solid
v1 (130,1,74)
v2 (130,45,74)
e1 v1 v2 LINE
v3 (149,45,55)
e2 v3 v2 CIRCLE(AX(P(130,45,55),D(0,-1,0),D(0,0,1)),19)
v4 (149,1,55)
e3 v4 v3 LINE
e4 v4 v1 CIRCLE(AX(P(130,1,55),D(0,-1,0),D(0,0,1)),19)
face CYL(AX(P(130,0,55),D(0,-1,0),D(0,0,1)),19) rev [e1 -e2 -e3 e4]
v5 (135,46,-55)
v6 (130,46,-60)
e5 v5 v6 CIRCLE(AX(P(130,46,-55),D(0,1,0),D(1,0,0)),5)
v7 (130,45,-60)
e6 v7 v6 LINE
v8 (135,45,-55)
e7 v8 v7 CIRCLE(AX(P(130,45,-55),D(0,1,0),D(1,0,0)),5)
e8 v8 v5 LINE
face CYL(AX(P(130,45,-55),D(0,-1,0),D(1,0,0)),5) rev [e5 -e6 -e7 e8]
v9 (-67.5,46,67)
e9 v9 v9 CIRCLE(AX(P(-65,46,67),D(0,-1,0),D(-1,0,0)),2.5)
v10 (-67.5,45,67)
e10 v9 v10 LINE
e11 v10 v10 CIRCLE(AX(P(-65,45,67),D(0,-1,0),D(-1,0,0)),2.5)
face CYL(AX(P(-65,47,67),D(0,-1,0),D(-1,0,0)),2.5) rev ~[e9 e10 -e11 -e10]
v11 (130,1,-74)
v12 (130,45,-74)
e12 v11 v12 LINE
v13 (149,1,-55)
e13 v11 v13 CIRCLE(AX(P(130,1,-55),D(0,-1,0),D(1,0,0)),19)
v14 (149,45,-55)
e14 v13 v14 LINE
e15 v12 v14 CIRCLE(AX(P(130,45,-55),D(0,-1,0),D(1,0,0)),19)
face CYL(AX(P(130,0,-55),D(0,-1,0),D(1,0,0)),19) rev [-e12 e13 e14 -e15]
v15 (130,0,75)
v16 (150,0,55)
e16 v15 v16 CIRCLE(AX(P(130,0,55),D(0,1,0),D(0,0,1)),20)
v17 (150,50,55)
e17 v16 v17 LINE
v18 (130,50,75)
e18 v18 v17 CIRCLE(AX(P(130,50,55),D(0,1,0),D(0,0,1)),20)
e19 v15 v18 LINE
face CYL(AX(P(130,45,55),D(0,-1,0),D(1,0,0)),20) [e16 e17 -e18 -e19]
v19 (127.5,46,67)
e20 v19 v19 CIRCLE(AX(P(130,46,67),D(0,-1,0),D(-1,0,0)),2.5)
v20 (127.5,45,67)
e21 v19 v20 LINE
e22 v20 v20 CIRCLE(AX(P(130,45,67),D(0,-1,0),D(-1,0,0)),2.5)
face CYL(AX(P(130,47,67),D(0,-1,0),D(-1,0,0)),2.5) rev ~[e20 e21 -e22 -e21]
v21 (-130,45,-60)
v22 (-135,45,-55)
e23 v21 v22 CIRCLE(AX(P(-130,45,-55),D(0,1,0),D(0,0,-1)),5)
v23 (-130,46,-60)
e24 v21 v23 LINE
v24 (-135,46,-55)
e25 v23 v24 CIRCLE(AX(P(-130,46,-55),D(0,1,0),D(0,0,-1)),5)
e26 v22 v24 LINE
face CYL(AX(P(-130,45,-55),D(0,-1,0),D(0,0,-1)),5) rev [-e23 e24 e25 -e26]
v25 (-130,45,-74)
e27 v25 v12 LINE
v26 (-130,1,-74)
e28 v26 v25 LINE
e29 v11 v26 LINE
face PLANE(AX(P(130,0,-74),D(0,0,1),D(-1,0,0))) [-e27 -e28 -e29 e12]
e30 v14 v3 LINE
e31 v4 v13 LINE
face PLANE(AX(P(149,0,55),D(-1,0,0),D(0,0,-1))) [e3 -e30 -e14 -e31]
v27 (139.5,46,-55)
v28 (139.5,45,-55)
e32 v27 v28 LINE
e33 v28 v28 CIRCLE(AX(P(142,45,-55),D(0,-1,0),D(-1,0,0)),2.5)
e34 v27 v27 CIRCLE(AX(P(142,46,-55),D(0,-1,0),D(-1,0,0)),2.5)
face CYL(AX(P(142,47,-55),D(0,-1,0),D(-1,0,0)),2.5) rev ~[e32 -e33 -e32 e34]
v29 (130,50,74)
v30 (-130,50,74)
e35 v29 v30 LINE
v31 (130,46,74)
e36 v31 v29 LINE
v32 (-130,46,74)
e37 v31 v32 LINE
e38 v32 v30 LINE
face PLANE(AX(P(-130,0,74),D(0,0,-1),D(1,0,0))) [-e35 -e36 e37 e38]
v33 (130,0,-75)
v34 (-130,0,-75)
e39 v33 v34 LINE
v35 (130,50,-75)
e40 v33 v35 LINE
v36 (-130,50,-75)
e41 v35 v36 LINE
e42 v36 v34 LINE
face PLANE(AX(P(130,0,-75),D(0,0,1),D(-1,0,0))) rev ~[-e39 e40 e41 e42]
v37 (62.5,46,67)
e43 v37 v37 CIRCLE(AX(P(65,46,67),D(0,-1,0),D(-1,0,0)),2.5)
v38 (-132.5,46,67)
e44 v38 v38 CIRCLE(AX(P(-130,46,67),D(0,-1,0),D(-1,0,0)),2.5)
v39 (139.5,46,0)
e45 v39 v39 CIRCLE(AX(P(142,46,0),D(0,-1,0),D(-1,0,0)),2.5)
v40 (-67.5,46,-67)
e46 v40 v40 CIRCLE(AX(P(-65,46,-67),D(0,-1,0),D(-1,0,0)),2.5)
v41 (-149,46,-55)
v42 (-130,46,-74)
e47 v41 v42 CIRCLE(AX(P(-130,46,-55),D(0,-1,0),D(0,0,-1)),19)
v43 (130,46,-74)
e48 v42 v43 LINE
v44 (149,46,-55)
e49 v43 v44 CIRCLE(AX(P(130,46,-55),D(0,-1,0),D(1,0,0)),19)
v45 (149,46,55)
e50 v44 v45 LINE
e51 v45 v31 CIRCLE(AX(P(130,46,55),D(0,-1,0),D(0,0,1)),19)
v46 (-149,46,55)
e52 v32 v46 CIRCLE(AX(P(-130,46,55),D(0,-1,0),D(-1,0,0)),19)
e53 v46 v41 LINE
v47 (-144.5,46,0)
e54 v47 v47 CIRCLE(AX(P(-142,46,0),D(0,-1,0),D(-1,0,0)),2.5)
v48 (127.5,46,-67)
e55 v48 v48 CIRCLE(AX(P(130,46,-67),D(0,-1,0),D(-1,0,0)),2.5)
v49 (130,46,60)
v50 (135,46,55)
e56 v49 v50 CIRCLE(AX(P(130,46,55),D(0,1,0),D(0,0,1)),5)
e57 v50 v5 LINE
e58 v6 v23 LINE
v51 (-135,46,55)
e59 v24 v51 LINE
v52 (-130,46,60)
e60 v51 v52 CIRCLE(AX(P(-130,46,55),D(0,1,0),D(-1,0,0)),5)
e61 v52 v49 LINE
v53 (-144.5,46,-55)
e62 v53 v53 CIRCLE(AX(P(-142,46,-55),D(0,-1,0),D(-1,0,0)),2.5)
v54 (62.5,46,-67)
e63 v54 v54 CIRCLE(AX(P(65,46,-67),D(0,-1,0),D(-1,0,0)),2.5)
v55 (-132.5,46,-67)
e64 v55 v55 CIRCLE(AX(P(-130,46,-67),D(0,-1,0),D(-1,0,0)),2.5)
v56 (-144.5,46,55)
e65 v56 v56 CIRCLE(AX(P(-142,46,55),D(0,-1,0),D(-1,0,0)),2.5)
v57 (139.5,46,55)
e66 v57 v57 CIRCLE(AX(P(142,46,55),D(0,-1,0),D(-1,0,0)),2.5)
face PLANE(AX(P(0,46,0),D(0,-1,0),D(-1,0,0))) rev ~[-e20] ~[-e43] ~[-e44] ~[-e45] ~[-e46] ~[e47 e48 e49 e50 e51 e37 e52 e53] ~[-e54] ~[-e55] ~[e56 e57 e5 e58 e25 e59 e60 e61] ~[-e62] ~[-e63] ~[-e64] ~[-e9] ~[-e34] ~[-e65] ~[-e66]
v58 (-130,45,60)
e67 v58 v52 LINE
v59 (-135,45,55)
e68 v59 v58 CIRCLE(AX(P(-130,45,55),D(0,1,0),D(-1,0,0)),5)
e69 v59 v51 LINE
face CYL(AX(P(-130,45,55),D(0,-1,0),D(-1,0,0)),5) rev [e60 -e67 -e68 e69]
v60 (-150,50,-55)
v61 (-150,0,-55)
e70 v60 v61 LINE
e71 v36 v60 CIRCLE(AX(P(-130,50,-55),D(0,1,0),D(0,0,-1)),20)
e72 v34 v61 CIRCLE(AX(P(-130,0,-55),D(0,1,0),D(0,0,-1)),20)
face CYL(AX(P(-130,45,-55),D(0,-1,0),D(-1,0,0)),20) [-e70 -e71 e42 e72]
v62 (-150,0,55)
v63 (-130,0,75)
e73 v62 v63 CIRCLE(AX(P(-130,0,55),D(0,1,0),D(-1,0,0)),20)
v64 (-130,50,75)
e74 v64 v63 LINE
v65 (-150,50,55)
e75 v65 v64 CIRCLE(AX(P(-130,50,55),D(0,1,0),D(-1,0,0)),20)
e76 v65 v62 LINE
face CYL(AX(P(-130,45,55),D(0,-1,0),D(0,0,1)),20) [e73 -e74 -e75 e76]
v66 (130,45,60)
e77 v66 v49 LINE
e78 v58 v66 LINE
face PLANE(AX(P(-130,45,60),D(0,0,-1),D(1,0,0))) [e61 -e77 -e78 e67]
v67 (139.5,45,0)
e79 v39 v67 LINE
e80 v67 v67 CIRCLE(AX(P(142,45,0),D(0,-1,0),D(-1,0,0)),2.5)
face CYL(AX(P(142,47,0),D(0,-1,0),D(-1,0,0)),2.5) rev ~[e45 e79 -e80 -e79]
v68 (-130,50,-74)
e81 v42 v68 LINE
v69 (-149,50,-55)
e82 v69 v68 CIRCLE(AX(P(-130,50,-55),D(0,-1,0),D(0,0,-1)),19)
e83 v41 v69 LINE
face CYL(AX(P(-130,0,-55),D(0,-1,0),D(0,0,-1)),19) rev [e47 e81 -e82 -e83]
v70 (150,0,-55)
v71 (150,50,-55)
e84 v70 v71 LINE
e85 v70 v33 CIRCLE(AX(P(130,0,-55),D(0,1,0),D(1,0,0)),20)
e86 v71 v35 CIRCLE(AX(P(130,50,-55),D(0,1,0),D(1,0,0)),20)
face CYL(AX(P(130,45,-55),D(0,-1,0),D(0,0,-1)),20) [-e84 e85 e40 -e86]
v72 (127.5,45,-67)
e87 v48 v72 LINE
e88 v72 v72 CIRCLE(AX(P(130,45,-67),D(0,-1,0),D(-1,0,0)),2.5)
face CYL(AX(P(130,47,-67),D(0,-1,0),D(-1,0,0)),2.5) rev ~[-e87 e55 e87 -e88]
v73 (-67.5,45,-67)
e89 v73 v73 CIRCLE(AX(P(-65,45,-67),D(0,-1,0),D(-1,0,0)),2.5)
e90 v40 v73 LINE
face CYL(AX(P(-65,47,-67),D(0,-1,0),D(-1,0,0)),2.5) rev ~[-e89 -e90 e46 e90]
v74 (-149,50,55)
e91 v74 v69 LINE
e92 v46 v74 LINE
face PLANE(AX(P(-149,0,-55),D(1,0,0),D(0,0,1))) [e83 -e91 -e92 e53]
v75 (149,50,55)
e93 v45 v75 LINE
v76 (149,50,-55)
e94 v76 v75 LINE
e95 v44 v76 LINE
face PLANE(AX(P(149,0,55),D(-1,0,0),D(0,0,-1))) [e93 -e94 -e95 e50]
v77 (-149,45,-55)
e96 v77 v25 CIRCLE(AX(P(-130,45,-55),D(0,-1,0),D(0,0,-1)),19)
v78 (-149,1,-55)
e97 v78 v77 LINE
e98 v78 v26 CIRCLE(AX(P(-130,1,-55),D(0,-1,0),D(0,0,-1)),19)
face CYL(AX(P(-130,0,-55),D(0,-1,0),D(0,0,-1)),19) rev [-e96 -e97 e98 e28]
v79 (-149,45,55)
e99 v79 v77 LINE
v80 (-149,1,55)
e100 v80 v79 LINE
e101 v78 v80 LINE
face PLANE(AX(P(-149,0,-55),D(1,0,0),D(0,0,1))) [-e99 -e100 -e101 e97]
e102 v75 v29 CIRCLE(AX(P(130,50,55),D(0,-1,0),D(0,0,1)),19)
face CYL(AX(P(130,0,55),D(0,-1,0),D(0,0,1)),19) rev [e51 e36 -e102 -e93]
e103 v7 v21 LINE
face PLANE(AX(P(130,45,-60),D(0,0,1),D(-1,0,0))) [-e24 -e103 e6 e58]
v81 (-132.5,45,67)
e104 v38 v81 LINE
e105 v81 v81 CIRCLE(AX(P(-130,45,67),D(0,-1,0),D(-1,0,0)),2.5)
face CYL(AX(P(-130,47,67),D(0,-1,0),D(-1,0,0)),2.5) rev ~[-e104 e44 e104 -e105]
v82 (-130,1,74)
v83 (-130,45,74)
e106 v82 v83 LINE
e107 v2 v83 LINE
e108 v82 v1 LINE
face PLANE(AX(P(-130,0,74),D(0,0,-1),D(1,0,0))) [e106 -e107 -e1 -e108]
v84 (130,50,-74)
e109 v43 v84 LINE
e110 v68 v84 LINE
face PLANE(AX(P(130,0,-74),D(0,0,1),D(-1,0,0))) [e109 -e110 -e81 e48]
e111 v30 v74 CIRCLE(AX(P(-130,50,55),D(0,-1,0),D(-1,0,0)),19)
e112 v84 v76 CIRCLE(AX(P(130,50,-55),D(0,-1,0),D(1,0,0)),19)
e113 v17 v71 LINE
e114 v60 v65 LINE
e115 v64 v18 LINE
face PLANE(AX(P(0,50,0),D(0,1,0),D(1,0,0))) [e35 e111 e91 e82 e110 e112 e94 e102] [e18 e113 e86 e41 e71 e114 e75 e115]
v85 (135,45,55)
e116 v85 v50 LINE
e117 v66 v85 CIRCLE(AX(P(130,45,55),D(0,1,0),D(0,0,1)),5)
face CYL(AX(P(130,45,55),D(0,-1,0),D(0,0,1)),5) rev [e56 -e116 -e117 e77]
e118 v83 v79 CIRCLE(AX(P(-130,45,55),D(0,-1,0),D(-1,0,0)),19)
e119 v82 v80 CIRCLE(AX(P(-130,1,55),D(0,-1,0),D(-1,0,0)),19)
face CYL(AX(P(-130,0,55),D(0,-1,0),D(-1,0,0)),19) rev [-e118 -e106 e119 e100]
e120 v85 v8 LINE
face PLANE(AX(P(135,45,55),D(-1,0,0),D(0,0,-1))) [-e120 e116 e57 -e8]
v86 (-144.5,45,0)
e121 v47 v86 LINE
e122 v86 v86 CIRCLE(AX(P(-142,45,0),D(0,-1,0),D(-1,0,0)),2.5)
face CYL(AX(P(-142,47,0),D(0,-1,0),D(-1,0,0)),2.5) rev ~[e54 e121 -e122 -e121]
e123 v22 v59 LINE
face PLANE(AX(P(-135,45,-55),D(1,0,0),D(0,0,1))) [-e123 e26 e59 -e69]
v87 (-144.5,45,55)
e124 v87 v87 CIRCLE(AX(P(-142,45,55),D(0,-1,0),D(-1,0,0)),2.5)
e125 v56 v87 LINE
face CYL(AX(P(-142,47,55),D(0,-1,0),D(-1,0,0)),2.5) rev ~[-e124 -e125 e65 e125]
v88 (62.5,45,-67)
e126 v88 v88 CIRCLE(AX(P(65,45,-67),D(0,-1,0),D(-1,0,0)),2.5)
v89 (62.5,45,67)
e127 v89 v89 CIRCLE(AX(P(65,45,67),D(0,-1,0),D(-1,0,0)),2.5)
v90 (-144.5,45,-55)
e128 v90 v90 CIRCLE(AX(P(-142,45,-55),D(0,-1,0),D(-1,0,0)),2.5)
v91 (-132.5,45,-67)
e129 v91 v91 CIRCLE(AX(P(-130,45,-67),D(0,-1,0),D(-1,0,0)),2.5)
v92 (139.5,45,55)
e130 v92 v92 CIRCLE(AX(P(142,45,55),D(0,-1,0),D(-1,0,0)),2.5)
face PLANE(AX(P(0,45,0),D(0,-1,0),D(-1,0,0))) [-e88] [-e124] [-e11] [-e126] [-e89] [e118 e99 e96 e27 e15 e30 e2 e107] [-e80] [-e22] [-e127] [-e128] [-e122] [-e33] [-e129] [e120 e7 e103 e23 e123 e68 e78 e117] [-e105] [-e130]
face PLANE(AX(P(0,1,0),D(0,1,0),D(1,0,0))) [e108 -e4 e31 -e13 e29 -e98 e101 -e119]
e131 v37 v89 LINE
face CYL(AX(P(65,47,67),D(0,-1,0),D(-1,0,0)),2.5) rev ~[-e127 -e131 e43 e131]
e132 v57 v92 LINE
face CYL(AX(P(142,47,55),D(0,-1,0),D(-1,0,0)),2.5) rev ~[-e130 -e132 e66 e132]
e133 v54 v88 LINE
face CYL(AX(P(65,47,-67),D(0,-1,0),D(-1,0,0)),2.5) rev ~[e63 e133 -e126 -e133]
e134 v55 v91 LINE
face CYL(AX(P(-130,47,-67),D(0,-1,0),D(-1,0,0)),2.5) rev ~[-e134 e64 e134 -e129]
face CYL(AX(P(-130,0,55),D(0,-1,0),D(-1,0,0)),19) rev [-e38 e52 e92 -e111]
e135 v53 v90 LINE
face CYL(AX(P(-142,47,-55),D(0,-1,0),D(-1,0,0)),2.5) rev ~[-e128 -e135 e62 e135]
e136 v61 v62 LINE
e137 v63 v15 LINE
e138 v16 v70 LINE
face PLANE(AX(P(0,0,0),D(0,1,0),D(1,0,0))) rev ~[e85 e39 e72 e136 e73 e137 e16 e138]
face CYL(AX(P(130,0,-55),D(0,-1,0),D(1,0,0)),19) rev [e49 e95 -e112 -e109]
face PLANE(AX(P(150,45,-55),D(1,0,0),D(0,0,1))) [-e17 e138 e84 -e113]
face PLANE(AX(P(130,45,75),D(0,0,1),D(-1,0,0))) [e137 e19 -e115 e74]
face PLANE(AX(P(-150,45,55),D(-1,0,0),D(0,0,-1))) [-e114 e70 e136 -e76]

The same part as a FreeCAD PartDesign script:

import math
import FreeCAD as App
import Part
import Sketcher

V = App.Vector


def faces_at(feature, points):
    """Names of the faces that lie closest to the given points."""
    faces = feature.Shape.Faces
    near = lambda p: min(range(len(faces)), key=lambda i: faces[i].distToShape(Part.Vertex(*p))[0])
    return sorted({f"Face{near(p) + 1}" for p in points})

doc = App.newDocument("Part")
body = doc.addObject("PartDesign::Body", "Body")

# Sketch on XZ plane
sketch1 = body.newObject("Sketcher::SketchObject", "Sketch")
sketch1.AttachmentSupport = (doc.getObject("XZ_Plane"), [""])
sketch1.MapMode = "FlatFace"
sketch1.addGeometry([
    Part.LineSegment(V(-130, 75, 0), V(130, 75, 0)),  # 0
    Part.ArcOfCircle(Part.Circle(V(130, 55, 0), V(0, 0, 1), 20), math.radians(0), math.radians(90)),  # 1
    Part.LineSegment(V(150, 55, 0), V(150, -55, 0)),  # 2
    Part.ArcOfCircle(Part.Circle(V(130, -55, 0), V(0, 0, 1), 20), math.radians(-90), math.radians(0)),  # 3
    Part.LineSegment(V(130, -75, 0), V(-130, -75, 0)),  # 4
    Part.ArcOfCircle(Part.Circle(V(-130, -55, 0), V(0, 0, 1), 20), math.radians(180), math.radians(270)),  # 5
    Part.LineSegment(V(-150, -55, 0), V(-150, 55, 0)),  # 6
    Part.ArcOfCircle(Part.Circle(V(-130, 55, 0), V(0, 0, 1), 20), math.radians(90), math.radians(180)),  # 7
], False)
sketch1.addConstraint([
    Sketcher.Constraint("Tangent", 0, 2, 1, 2),
    Sketcher.Constraint("Tangent", 1, 1, 2, 1),
    Sketcher.Constraint("Tangent", 2, 2, 3, 2),
    Sketcher.Constraint("Tangent", 3, 1, 4, 1),
    Sketcher.Constraint("Tangent", 4, 2, 5, 2),
    Sketcher.Constraint("Tangent", 5, 1, 6, 1),
    Sketcher.Constraint("Tangent", 6, 2, 7, 2),
    Sketcher.Constraint("Tangent", 7, 1, 0, 1),
    Sketcher.Constraint("Horizontal", 0),
    Sketcher.Constraint("Vertical", 2),
    Sketcher.Constraint("Horizontal", 4),
    Sketcher.Constraint("Vertical", 6),
    Sketcher.Constraint("Equal", 1, 3),
    Sketcher.Constraint("Equal", 3, 5),
    Sketcher.Constraint("Equal", 5, 7),
    Sketcher.Constraint("Symmetric", 1, 3, 5, 3, -1, 1),
    Sketcher.Constraint("Radius", 1, 20.0),
    Sketcher.Constraint("DistanceX", 0, 1, 0, 2, 260.0),
    Sketcher.Constraint("DistanceY", 2, 2, 2, 1, 110.0),
])
pad1 = body.newObject("PartDesign::Pad", "Pad")
pad1.Profile = sketch1
pad1.Length = 50
pad1.Reversed = True
doc.recompute()

thickness = body.newObject("PartDesign::Thickness", "Thickness")
thickness.Base = (pad1, faces_at(pad1, [(0, 50, 0)]))
thickness.Value = 1
thickness.Reversed = True
thickness.Join = "Intersection"

# Sketch on XZ plane
sketch2 = body.newObject("Sketcher::SketchObject", "Sketch001")
sketch2.AttachmentSupport = (doc.getObject("XZ_Plane"), [""])
sketch2.MapMode = "FlatFace"
sketch2.AttachmentOffset = App.Placement(V(0, 0, -45), App.Rotation())
sketch2.addGeometry([
    Part.LineSegment(V(-130, -75, 0), V(130, -75, 0)),  # 0
    Part.ArcOfCircle(Part.Circle(V(130, -55, 0), V(0, 0, 1), 20), math.radians(-90), math.radians(0)),  # 1
    Part.LineSegment(V(150, -55, 0), V(150, 55, 0)),  # 2
    Part.ArcOfCircle(Part.Circle(V(130, 55, 0), V(0, 0, 1), 20), math.radians(0), math.radians(90)),  # 3
    Part.LineSegment(V(130, 75, 0), V(-130, 75, 0)),  # 4
    Part.ArcOfCircle(Part.Circle(V(-130, 55, 0), V(0, 0, 1), 20), math.radians(90), math.radians(180)),  # 5
    Part.LineSegment(V(-150, 55, 0), V(-150, -55, 0)),  # 6
    Part.ArcOfCircle(Part.Circle(V(-130, -55, 0), V(0, 0, 1), 20), math.radians(180), math.radians(270)),  # 7
    Part.ArcOfCircle(Part.Circle(V(-130, 55, 0), V(0, 0, 1), 5), math.radians(90), math.radians(180)),  # 8
    Part.LineSegment(V(-130, 60, 0), V(130, 60, 0)),  # 9
    Part.ArcOfCircle(Part.Circle(V(130, 55, 0), V(0, 0, 1), 5), math.radians(0), math.radians(90)),  # 10
    Part.LineSegment(V(135, 55, 0), V(135, -55, 0)),  # 11
    Part.ArcOfCircle(Part.Circle(V(130, -55, 0), V(0, 0, 1), 5), math.radians(-90), math.radians(0)),  # 12
    Part.LineSegment(V(130, -60, 0), V(-130, -60, 0)),  # 13
    Part.ArcOfCircle(Part.Circle(V(-130, -55, 0), V(0, 0, 1), 5), math.radians(180), math.radians(270)),  # 14
    Part.LineSegment(V(-135, -55, 0), V(-135, 55, 0)),  # 15
], False)
sketch2.addConstraint([
    Sketcher.Constraint("Tangent", 0, 2, 1, 1),
    Sketcher.Constraint("Tangent", 1, 2, 2, 1),
    Sketcher.Constraint("Tangent", 2, 2, 3, 1),
    Sketcher.Constraint("Tangent", 3, 2, 4, 1),
    Sketcher.Constraint("Tangent", 4, 2, 5, 1),
    Sketcher.Constraint("Tangent", 5, 2, 6, 1),
    Sketcher.Constraint("Tangent", 6, 2, 7, 1),
    Sketcher.Constraint("Tangent", 7, 2, 0, 1),
    Sketcher.Constraint("Tangent", 8, 1, 9, 1),
    Sketcher.Constraint("Tangent", 9, 2, 10, 2),
    Sketcher.Constraint("Tangent", 10, 1, 11, 1),
    Sketcher.Constraint("Tangent", 11, 2, 12, 2),
    Sketcher.Constraint("Tangent", 12, 1, 13, 1),
    Sketcher.Constraint("Tangent", 13, 2, 14, 2),
    Sketcher.Constraint("Tangent", 14, 1, 15, 1),
    Sketcher.Constraint("Tangent", 15, 2, 8, 2),
    Sketcher.Constraint("Horizontal", 0),
    Sketcher.Constraint("Vertical", 2),
    Sketcher.Constraint("Horizontal", 4),
    Sketcher.Constraint("Vertical", 6),
    Sketcher.Constraint("Horizontal", 9),
    Sketcher.Constraint("Vertical", 11),
    Sketcher.Constraint("Horizontal", 13),
    Sketcher.Constraint("Vertical", 15),
    Sketcher.Constraint("Coincident", 8, 3, 5, 3),
    Sketcher.Constraint("Coincident", 10, 3, 3, 3),
    Sketcher.Constraint("Coincident", 12, 3, 1, 3),
    Sketcher.Constraint("Equal", 1, 3),
    Sketcher.Constraint("Equal", 3, 5),
    Sketcher.Constraint("Equal", 5, 7),
    Sketcher.Constraint("Equal", 12, 14),
    Sketcher.Constraint("Symmetric", 1, 3, 5, 3, -1, 1),
    Sketcher.Constraint("Radius", 1, 20.0),
    Sketcher.Constraint("Radius", 8, 5.0),
    Sketcher.Constraint("DistanceX", 0, 1, 0, 2, 260.0),
    Sketcher.Constraint("DistanceY", 2, 1, 2, 2, 110.0),
])
pad2 = body.newObject("PartDesign::Pad", "Pad001")
pad2.Profile = sketch2
pad2.Length = 1
pad2.Reversed = True

# Sketch on XZ plane
sketch3 = body.newObject("Sketcher::SketchObject", "Sketch002")
sketch3.AttachmentSupport = (doc.getObject("XZ_Plane"), [""])
sketch3.MapMode = "FlatFace"
sketch3.AttachmentOffset = App.Placement(V(0, 0, -46), App.Rotation())
sketch3.addGeometry([
    Part.Circle(V(-65, -67, 0), V(0, 0, 1), 2.5),  # 0
    Part.Circle(V(65, -67, 0), V(0, 0, 1), 2.5),  # 1
    Part.Circle(V(142, 0, 0), V(0, 0, 1), 2.5),  # 2
    Part.Circle(V(-142, 0, 0), V(0, 0, 1), 2.5),  # 3
    Part.Circle(V(-65, 67, 0), V(0, 0, 1), 2.5),  # 4
    Part.Circle(V(65, 67, 0), V(0, 0, 1), 2.5),  # 5
], False)
sketch3.addConstraint([
    Sketcher.Constraint("Equal", 0, 1),
    Sketcher.Constraint("Equal", 1, 2),
    Sketcher.Constraint("Equal", 2, 3),
    Sketcher.Constraint("Equal", 3, 4),
    Sketcher.Constraint("Equal", 4, 5),
    Sketcher.Constraint("Symmetric", 2, 3, 3, 3, -1, 1),
    Sketcher.Constraint("Symmetric", 1, 3, 4, 3, -1, 1),
    Sketcher.Constraint("Symmetric", 0, 3, 5, 3, -1, 1),
    Sketcher.Constraint("Symmetric", 0, 3, 1, 3, -2),
    Sketcher.Constraint("PointOnObject", 2, 3, -1),
    Sketcher.Constraint("Diameter", 0, 5.0),
    Sketcher.Constraint("DistanceX", 0, 3, -1, 1, 65.0),
    Sketcher.Constraint("DistanceY", 0, 3, -1, 1, 67.0),
    Sketcher.Constraint("DistanceX", -1, 1, 2, 3, 142.0),
])
doc.recompute()
hole = body.newObject("PartDesign::Hole", "Hole")
hole.Profile = sketch3
hole.ThreadType = "None"
hole.Diameter = 5
hole.DepthType = "Dimension"
hole.Depth = 1
hole.DrillPoint = "Flat"
hole.Reversed = True

# Sketch on XZ plane
sketch4 = body.newObject("Sketcher::SketchObject", "Sketch003")
sketch4.AttachmentSupport = (doc.getObject("XZ_Plane"), [""])
sketch4.MapMode = "FlatFace"
sketch4.AttachmentOffset = App.Placement(V(0, 0, -46), App.Rotation())
sketch4.addGeometry([
    Part.Circle(V(-130, -67, 0), V(0, 0, 1), 2.5),  # 0
    Part.Circle(V(-142, -55, 0), V(0, 0, 1), 2.5),  # 1
    Part.Circle(V(-142, 55, 0), V(0, 0, 1), 2.5),  # 2
    Part.Circle(V(-130, 67, 0), V(0, 0, 1), 2.5),  # 3
    Part.Circle(V(130, 67, 0), V(0, 0, 1), 2.5),  # 4
    Part.Circle(V(142, 55, 0), V(0, 0, 1), 2.5),  # 5
    Part.Circle(V(142, -55, 0), V(0, 0, 1), 2.5),  # 6
    Part.Circle(V(130, -67, 0), V(0, 0, 1), 2.5),  # 7
], False)
sketch4.addConstraint([
    Sketcher.Constraint("Equal", 0, 1),
    Sketcher.Constraint("Equal", 1, 2),
    Sketcher.Constraint("Equal", 2, 3),
    Sketcher.Constraint("Equal", 3, 4),
    Sketcher.Constraint("Equal", 4, 5),
    Sketcher.Constraint("Equal", 5, 6),
    Sketcher.Constraint("Equal", 6, 7),
    Sketcher.Constraint("Symmetric", 0, 3, 4, 3, -1, 1),
    Sketcher.Constraint("Symmetric", 1, 3, 5, 3, -1, 1),
    Sketcher.Constraint("Symmetric", 2, 3, 6, 3, -1, 1),
    Sketcher.Constraint("Symmetric", 3, 3, 7, 3, -1, 1),
    Sketcher.Constraint("Symmetric", 3, 3, 4, 3, -2),
    Sketcher.Constraint("Symmetric", 2, 3, 5, 3, -2),
    Sketcher.Constraint("Diameter", 0, 5.0),
    Sketcher.Constraint("DistanceX", 0, 3, -1, 1, 130.0),
    Sketcher.Constraint("DistanceY", 0, 3, -1, 1, 67.0),
    Sketcher.Constraint("DistanceX", 1, 3, -1, 1, 142.0),
    Sketcher.Constraint("DistanceY", 1, 3, -1, 1, 55.0),
])
doc.recompute()
hole2 = body.newObject("PartDesign::Hole", "Hole001")
hole2.Profile = sketch4
hole2.ThreadType = "None"
hole2.Diameter = 5
hole2.DepthType = "Dimension"
hole2.Depth = 1
hole2.DrillPoint = "Flat"
hole2.Reversed = True

doc.recompute()
